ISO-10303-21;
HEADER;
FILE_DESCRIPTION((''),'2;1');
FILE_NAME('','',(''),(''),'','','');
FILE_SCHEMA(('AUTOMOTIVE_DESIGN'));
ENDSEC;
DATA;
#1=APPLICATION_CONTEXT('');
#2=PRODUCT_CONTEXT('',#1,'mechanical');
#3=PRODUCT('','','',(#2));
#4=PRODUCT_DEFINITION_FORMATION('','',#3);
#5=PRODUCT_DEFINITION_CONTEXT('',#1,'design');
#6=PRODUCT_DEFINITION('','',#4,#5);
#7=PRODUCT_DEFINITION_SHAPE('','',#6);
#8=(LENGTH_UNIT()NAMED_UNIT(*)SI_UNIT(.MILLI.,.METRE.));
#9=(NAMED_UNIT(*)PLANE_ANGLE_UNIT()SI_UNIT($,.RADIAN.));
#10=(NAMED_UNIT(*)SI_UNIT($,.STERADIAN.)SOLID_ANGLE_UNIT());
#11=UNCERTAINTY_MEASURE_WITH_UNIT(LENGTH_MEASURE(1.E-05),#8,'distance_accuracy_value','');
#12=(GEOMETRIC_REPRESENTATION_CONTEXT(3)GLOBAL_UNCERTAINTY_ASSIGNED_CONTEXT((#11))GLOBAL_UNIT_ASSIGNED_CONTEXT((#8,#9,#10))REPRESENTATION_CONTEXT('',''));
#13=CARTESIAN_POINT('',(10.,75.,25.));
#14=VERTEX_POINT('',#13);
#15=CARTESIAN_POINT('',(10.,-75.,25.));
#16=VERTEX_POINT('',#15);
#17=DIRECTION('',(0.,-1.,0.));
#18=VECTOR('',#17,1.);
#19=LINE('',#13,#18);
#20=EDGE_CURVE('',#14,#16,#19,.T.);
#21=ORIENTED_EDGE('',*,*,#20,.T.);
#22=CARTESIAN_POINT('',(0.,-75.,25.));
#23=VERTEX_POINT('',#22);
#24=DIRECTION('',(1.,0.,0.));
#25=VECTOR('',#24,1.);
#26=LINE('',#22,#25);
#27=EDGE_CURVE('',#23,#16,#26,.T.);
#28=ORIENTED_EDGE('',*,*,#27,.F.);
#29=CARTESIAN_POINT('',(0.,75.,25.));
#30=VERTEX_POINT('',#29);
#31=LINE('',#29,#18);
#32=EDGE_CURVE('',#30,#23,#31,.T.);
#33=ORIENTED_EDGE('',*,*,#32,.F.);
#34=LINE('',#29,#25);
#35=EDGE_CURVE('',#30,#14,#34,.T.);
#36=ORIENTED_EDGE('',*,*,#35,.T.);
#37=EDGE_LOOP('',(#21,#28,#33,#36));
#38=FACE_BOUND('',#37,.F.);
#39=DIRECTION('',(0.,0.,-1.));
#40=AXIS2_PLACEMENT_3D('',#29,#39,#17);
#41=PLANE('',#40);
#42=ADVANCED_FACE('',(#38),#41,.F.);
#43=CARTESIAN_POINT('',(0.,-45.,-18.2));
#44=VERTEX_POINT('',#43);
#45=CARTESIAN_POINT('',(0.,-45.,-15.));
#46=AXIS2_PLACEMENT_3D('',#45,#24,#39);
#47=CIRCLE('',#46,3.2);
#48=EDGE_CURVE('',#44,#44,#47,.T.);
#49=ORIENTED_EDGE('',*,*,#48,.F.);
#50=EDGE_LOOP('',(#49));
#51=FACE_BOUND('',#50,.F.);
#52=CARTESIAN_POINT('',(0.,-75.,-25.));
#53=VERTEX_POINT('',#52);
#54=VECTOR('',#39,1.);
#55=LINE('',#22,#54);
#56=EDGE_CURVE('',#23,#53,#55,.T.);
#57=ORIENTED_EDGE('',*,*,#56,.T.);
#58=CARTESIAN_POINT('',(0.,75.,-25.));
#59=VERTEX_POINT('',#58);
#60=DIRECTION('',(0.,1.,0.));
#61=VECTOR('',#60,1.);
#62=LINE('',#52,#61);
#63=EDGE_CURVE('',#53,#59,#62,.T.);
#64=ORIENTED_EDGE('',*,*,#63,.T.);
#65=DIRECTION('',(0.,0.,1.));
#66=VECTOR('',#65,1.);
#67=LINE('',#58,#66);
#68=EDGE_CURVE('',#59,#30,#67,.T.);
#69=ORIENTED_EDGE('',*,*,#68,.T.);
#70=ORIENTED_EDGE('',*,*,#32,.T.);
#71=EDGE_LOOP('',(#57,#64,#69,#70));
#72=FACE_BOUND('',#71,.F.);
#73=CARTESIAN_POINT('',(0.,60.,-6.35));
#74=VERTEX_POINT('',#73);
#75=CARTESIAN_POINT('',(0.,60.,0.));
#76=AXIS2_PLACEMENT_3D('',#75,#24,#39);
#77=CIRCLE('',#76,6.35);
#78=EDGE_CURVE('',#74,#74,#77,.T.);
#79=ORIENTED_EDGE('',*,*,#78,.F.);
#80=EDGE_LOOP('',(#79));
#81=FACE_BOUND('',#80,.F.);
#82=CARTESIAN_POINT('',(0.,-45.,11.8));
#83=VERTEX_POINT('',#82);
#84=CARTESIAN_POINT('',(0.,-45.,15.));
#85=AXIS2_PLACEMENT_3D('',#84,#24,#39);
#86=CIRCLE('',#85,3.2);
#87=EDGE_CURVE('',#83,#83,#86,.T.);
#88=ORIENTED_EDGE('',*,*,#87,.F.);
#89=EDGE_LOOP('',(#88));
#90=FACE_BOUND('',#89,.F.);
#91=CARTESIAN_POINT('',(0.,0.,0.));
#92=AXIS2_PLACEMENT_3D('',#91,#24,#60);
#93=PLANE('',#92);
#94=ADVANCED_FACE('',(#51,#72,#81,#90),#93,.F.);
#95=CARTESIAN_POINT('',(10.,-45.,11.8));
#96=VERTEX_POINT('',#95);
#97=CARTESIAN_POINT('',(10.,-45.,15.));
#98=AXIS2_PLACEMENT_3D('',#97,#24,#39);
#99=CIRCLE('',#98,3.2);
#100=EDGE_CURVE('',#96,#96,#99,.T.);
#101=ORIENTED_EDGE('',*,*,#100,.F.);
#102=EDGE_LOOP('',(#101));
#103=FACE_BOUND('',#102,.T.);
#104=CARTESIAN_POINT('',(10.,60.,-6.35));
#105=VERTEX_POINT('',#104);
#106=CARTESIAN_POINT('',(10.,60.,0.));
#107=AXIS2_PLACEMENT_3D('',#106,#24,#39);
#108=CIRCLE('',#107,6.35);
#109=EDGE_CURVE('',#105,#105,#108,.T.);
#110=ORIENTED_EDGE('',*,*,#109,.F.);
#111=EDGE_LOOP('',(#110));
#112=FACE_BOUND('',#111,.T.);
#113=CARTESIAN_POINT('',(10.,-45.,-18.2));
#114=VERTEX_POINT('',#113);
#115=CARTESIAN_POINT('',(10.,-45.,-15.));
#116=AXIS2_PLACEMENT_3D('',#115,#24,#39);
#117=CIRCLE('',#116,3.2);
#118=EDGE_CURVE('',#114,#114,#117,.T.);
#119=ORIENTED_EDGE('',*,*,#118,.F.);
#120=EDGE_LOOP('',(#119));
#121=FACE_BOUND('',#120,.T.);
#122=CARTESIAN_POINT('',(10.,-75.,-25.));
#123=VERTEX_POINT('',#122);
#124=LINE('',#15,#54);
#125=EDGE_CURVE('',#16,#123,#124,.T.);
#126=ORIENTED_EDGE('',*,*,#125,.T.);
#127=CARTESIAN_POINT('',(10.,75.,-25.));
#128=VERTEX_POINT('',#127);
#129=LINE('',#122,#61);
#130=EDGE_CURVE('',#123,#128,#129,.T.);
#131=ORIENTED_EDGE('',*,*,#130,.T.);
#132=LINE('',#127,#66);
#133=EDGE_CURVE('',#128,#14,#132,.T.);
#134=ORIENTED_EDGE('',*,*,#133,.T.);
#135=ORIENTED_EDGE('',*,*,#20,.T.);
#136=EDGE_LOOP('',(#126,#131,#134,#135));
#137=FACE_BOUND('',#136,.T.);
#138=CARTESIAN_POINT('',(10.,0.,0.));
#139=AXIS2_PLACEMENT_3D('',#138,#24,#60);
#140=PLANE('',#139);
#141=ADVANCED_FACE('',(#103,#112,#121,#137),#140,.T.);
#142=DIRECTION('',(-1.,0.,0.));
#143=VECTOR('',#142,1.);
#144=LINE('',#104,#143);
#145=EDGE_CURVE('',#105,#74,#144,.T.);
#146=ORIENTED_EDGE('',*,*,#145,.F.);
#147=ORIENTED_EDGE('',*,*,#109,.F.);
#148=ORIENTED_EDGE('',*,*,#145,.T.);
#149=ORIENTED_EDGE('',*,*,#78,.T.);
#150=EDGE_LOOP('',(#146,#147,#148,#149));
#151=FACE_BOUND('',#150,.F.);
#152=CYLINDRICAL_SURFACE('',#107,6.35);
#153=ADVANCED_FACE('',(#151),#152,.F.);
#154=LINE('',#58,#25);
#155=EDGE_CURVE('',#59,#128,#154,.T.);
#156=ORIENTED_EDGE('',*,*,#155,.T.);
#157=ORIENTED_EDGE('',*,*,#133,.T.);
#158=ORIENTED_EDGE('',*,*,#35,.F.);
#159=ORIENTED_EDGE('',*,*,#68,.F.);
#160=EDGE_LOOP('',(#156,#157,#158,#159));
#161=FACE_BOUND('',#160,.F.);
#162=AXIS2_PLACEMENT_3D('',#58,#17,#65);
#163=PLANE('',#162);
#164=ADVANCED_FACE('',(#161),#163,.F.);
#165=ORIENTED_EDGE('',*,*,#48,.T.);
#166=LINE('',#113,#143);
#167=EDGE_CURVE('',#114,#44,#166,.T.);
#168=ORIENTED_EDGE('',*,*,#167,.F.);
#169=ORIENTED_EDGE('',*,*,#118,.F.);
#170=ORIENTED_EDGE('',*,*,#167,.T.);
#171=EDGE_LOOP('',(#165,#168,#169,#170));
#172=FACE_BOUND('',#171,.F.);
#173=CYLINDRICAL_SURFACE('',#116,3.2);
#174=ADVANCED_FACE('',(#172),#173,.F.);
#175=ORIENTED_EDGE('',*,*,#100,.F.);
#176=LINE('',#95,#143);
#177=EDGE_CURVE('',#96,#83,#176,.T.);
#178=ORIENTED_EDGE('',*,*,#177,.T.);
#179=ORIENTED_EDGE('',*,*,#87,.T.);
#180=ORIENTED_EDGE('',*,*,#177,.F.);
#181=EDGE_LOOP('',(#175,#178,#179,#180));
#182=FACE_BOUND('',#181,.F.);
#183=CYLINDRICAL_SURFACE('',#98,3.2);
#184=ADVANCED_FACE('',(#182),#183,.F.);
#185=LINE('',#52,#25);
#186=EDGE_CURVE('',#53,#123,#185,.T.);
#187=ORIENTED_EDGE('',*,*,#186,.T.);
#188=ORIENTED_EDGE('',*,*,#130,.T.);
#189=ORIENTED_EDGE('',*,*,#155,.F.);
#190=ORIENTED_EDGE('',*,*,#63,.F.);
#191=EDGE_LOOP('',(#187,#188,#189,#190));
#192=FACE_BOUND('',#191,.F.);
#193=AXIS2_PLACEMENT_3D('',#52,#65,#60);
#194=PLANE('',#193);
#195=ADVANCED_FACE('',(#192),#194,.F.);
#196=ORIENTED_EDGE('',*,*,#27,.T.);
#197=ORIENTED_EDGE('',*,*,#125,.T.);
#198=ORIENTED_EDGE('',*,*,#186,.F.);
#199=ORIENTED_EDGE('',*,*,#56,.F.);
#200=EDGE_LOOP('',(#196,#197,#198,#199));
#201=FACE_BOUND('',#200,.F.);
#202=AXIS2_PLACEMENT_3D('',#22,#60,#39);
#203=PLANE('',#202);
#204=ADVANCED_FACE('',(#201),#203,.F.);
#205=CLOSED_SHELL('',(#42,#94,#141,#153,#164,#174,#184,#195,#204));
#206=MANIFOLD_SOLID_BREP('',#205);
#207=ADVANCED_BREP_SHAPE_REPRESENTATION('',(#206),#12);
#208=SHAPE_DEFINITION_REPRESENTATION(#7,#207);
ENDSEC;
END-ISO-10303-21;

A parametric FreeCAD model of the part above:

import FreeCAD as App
import Part
import Sketcher

V = App.Vector
Q = App.Units.Quantity

doc = App.newDocument("Part")
body = doc.addObject("PartDesign::Body", "Body")

sketch1 = body.newObject("Sketcher::SketchObject", "Sketch")
sketch1.AttachmentSupport = (doc.getObject("YZ_Plane"), [""])
sketch1.MapMode = "FlatFace"
sketch1.addGeometry(Part.LineSegment(V(75, -25, 0), V(75, 25, 0)), False)
sketch1.addGeometry(Part.LineSegment(V(75, 25, 0), V(-75, 25, 0)), False)
sketch1.addGeometry(Part.LineSegment(V(-75, 25, 0), V(-75, -25, 0)), False)
sketch1.addGeometry(Part.LineSegment(V(-75, -25, 0), V(75, -25, 0)), False)
sketch1.addConstraint(Sketcher.Constraint("Coincident", 0, 2, 1, 1))
sketch1.addConstraint(Sketcher.Constraint("Coincident", 1, 2, 2, 1))
sketch1.addConstraint(Sketcher.Constraint("Coincident", 2, 2, 3, 1))
sketch1.addConstraint(Sketcher.Constraint("Coincident", 3, 2, 0, 1))
sketch1.addConstraint(Sketcher.Constraint("Vertical", 0))
sketch1.addConstraint(Sketcher.Constraint("Horizontal", 1))
sketch1.addConstraint(Sketcher.Constraint("Vertical", 2))
sketch1.addConstraint(Sketcher.Constraint("Horizontal", 3))
sketch1.addConstraint(Sketcher.Constraint("Symmetric", 0, 2, 2, 2, -1, 1))
sketch1.addConstraint(Sketcher.Constraint("DistanceX", 1, 2, 1, 1, Q("150 mm")))
sketch1.addConstraint(Sketcher.Constraint("DistanceY", 0, 1, 0, 2, Q("50 mm")))
pad1 = body.newObject("PartDesign::Pad", "Pad")
pad1.Profile = sketch1
pad1.Length = 10

sketch2 = body.newObject("Sketcher::SketchObject", "Sketch001")
sketch2.AttachmentSupport = (doc.getObject("YZ_Plane"), [""])
sketch2.MapMode = "FlatFace"
sketch2.AttachmentOffset = App.Placement(V(0, 0, 10), App.Rotation())
sketch2.addGeometry(Part.Circle(V(-45, 15, 0), V(0, 0, 1), 3.2), False)
sketch2.addGeometry(Part.Circle(V(-45, -15, 0), V(0, 0, 1), 3.2), False)
sketch2.addGeometry(Part.Circle(V(60, 0, 0), V(0, 0, 1), 6.35), False)
sketch2.addConstraint(Sketcher.Constraint("Equal", 0, 1))
sketch2.addConstraint(Sketcher.Constraint("Symmetric", 0, 3, 1, 3, -1))
sketch2.addConstraint(Sketcher.Constraint("PointOnObject", 2, 3, -1))
sketch2.addConstraint(Sketcher.Constraint("Diameter", 0, Q("6.4 mm")))
sketch2.addConstraint(Sketcher.Constraint("Diameter", 2, Q("12.7 mm")))
sketch2.addConstraint(Sketcher.Constraint("DistanceX", 0, 3, -1, 1, Q("45 mm")))
sketch2.addConstraint(Sketcher.Constraint("DistanceY", -1, 1, 0, 3, Q("15 mm")))
sketch2.addConstraint(Sketcher.Constraint("DistanceX", -1, 1, 2, 3, Q("60 mm")))
pocket1 = body.newObject("PartDesign::Pocket", "Pocket")
pocket1.Profile = sketch2
pocket1.Type = "ThroughAll"

doc.recompute()
